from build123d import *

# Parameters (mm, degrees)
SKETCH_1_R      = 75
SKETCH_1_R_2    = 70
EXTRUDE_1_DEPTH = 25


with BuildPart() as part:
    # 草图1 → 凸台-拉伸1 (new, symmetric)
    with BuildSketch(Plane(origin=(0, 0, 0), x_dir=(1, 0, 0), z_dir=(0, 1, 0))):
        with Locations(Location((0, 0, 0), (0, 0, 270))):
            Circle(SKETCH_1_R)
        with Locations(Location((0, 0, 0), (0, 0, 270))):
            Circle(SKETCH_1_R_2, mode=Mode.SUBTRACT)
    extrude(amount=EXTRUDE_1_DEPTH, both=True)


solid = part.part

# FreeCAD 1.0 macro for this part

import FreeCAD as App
import Part
import Sketcher
from FreeCAD import Vector

doc = App.newDocument("Part")
body = doc.addObject("PartDesign::Body", "Body")

# Sketch on XZ plane
sketch1 = body.newObject("Sketcher::SketchObject", "Sketch")
sketch1.AttachmentSupport = (doc.getObject("XZ_Plane"), [""])
sketch1.MapMode = "FlatFace"
sketch1.addGeometry([
    Part.Circle(Vector(0, 0, 0), Vector(0, 0, 1), 75),
    Part.Circle(Vector(0, 0, 0), Vector(0, 0, 1), 70),
], False)
sketch1.addConstraint([
    Sketcher.Constraint("Coincident", 0, 3, -1, 1),
    Sketcher.Constraint("Coincident", 1, 3, -1, 1),
    Sketcher.Constraint("Diameter", 0, 150.0),
    Sketcher.Constraint("Diameter", 1, 140.0),
])
pad1 = body.newObject("PartDesign::Pad", "Pad")
pad1.Profile = sketch1
pad1.Length = 50
pad1.Midplane = True

doc.recompute()
